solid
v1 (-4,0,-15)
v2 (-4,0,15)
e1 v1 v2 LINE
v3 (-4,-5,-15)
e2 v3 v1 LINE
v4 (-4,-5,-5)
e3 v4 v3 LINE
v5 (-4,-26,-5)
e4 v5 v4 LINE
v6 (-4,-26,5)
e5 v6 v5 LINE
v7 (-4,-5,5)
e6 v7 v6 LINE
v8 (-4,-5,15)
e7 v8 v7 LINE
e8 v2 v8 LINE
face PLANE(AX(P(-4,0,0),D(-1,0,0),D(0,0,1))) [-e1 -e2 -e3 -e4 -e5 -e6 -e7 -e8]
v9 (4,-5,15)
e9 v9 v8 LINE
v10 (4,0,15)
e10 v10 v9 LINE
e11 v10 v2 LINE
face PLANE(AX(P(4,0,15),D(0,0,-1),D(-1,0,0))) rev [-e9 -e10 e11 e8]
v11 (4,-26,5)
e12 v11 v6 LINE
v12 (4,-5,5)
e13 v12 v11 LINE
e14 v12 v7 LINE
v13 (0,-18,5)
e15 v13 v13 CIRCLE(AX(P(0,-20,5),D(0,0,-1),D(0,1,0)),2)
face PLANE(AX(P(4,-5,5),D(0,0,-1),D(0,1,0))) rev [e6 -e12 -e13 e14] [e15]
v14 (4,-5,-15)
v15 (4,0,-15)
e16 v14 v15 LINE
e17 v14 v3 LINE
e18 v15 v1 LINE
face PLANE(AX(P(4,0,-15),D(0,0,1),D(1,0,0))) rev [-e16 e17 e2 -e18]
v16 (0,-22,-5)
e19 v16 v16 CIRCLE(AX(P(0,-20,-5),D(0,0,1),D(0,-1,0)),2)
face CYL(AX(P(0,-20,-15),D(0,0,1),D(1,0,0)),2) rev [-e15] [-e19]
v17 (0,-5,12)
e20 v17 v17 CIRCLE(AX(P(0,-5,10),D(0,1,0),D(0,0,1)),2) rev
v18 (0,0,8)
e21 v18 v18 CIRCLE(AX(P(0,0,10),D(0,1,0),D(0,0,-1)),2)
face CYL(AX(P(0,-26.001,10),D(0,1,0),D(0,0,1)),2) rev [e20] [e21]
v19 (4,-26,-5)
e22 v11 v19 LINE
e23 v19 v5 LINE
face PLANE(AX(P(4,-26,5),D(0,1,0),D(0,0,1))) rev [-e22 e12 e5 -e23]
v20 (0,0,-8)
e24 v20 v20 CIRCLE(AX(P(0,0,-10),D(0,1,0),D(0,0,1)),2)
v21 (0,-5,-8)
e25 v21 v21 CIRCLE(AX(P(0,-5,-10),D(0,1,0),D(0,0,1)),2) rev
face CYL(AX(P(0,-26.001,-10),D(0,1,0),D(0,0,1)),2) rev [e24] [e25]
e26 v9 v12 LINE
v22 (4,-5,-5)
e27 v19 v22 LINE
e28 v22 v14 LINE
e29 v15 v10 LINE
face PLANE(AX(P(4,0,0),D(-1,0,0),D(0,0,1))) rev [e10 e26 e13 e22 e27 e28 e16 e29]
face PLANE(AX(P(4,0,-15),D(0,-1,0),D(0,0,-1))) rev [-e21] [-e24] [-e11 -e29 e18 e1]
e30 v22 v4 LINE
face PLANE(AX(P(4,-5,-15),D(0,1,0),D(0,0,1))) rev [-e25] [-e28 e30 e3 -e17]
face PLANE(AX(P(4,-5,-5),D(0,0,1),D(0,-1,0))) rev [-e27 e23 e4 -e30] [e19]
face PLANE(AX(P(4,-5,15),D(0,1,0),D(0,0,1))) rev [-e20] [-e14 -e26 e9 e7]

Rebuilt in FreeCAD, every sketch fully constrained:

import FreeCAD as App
import Part
import Sketcher

V = App.Vector


def add_polygon(sketch, points):
    """Adds a closed chain of lines whose ends are joined by coincident constraints."""
    first, n = sketch.GeometryCount, len(points)
    for a, b in zip(points, points[1:] + points[:1]):
        sketch.addGeometry(Part.LineSegment(App.Vector(*a, 0), App.Vector(*b, 0)), False)
    for i in range(n):
        sketch.addConstraint(Sketcher.Constraint("Coincident", first + i, 2, first + (i + 1) % n, 1))

doc = App.newDocument("Part")
params = doc.addObject("Spreadsheet::Sheet", "Params")
for row, (alias, value) in enumerate([
    ("sketch1_width", "5 mm"),
    ("sketch1_width2", "21 mm"),
    ("sketch1_height", "10 mm"),
    ("pad1_length", "8 mm"),
    ("sketch2_diameter", "4 mm"),
    ("sketch3_diameter", "4 mm"),
    ("sketch4_diameter", "4 mm"),
], start=1):
    params.set(f"A{row}", alias)
    params.set(f"B{row}", "=" + value)
    params.setAlias(f"B{row}", alias)

body = doc.addObject("PartDesign::Body", "Body")

sketch1 = doc.addObject("Sketcher::SketchObject", "Sketch")
body.addObject(sketch1)
sketch1.AttachmentSupport = (doc.YZ_Plane, [""])
sketch1.MapMode = "FlatFace"
add_polygon(sketch1, [(0, 15), (-5, 15), (-5, 5), (-26, 5), (-26, -5), (-5, -5), (-5, -15), (0, -15)])
sketch1.addConstraint([
    Sketcher.Constraint("Horizontal", 0),
    Sketcher.Constraint("Vertical", 1),
    Sketcher.Constraint("Horizontal", 2),
    Sketcher.Constraint("Vertical", 3),
    Sketcher.Constraint("Horizontal", 4),
    Sketcher.Constraint("Vertical", 5),
    Sketcher.Constraint("Horizontal", 6),
    Sketcher.Constraint("Vertical", 7),
    Sketcher.Constraint("Symmetric", 6, 2, 7, 2, -1, 1),
    Sketcher.Constraint("Symmetric", 1, 2, 4, 2, -1),
    Sketcher.Constraint("Equal", 1, 3),
    Sketcher.Constraint("DistanceX", 0, 2, 0, 1, 5.0),
    Sketcher.Constraint("DistanceX", 2, 2, 2, 1, 21.0),
    Sketcher.Constraint("DistanceY", 1, 2, 1, 1, 10.0),
])
sketch1.setExpression("Constraints[19]", "Params.sketch1_width")
sketch1.setExpression("Constraints[20]", "Params.sketch1_width2")
sketch1.setExpression("Constraints[21]", "Params.sketch1_height")
pad1 = doc.addObject("PartDesign::Pad", "Pad")
body.addObject(pad1)
pad1.Profile = sketch1
pad1.setExpression("Length", "Params.pad1_length")
pad1.Midplane = True

sketch2 = doc.addObject("Sketcher::SketchObject", "Sketch001")
body.addObject(sketch2)
sketch2.AttachmentSupport = (doc.XZ_Plane, [""])
sketch2.MapMode = "FlatFace"
sketch2.addGeometry(Part.Circle(V(0, -10, 0), V(0, 0, 1), 2), False)
sketch2.addConstraint([
    Sketcher.Constraint("PointOnObject", 0, 3, -2),
    Sketcher.Constraint("Diameter", 0, 4.0),
    Sketcher.Constraint("DistanceY", 0, 3, -1, 1, 10.0),
])
sketch2.setExpression("Constraints[1]", "Params.sketch2_diameter")
pocket1 = doc.addObject("PartDesign::Pocket", "Pocket")
body.addObject(pocket1)
pocket1.Profile = sketch2
pocket1.Type = "UpToFirst"
pocket1.Reversed = True

sketch3 = doc.addObject("Sketcher::SketchObject", "Sketch002")
body.addObject(sketch3)
sketch3.AttachmentSupport = (doc.XZ_Plane, [""])
sketch3.MapMode = "FlatFace"
sketch3.addGeometry(Part.Circle(V(0, 10, 0), V(0, 0, 1), 2), False)
sketch3.addConstraint([
    Sketcher.Constraint("PointOnObject", 0, 3, -2),
    Sketcher.Constraint("Diameter", 0, 4.0),
    Sketcher.Constraint("DistanceY", -1, 1, 0, 3, 10.0),
])
sketch3.setExpression("Constraints[1]", "Params.sketch3_diameter")
pocket2 = doc.addObject("PartDesign::Pocket", "Pocket001")
body.addObject(pocket2)
pocket2.Profile = sketch3
pocket2.Type = "UpToFirst"
pocket2.Reversed = True

sketch4 = doc.addObject("Sketcher::SketchObject", "Sketch003")
body.addObject(sketch4)
sketch4.AttachmentSupport = (doc.XY_Plane, [""])
sketch4.MapMode = "FlatFace"
sketch4.addGeometry(Part.Circle(V(0, -20, 0), V(0, 0, 1), 2), False)
sketch4.addConstraint([
    Sketcher.Constraint("PointOnObject", 0, 3, -2),
    Sketcher.Constraint("Diameter", 0, 4.0),
    Sketcher.Constraint("DistanceY", 0, 3, -1, 1, 20.0),
])
sketch4.setExpression("Constraints[1]", "Params.sketch4_diameter")
pocket3 = doc.addObject("PartDesign::Pocket", "Pocket002")
body.addObject(pocket3)
pocket3.Profile = sketch4
pocket3.Type = "ThroughAll"
pocket3.Midplane = True

doc.recompute()
